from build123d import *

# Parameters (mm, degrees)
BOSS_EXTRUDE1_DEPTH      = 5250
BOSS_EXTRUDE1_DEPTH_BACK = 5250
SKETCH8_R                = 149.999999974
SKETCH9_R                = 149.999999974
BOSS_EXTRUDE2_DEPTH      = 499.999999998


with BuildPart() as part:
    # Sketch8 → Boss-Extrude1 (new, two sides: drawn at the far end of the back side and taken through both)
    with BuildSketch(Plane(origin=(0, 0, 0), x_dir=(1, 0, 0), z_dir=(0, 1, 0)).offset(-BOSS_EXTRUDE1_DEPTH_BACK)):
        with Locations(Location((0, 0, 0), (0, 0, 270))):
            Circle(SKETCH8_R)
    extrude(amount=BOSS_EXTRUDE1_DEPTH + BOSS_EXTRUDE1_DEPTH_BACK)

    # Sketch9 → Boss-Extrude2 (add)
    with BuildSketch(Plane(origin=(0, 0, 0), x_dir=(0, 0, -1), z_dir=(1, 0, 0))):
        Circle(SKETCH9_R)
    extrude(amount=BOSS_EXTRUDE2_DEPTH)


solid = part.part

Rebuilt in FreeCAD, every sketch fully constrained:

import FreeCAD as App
import Part
import Sketcher
from FreeCAD import Vector

doc = App.newDocument("Part")
params = doc.addObject("Spreadsheet::Sheet", "Params")
for row, (alias, value) in enumerate([
    ("sketch1_diameter", "300 mm"),
    ("pad1_length", "5250 mm"),
    ("pad1_length2", "5250 mm"),
    ("sketch2_diameter", "300 mm"),
    ("pad2_length", "500 mm"),
], start=1):
    params.set(f"A{row}", alias)
    params.set(f"B{row}", "=" + value)
    params.setAlias(f"B{row}", alias)

body = doc.addObject("PartDesign::Body", "Body")

sketch1 = body.newObject("Sketcher::SketchObject", "Sketch")
sketch1.AttachmentSupport = (doc.getObject("XZ_Plane"), [""])
sketch1.MapMode = "FlatFace"
sketch1.addGeometry(Part.Circle(Vector(0, 0, 0), Vector(0, 0, 1), 150), False)
sketch1.addConstraint(Sketcher.Constraint("Coincident", 0, 3, -1, 1))
sketch1.addConstraint(Sketcher.Constraint("Diameter", 0, 300.0))
sketch1.setExpression("Constraints[1]", "Params.sketch1_diameter")
pad1 = body.newObject("PartDesign::Pad", "Pad")
pad1.Profile = sketch1
pad1.Type = "TwoLengths"
pad1.setExpression("Length", "Params.pad1_length")
pad1.setExpression("Length2", "Params.pad1_length2")
pad1.Reversed = True

sketch2 = body.newObject("Sketcher::SketchObject", "Sketch001")
sketch2.AttachmentSupport = (doc.getObject("YZ_Plane"), [""])
sketch2.MapMode = "FlatFace"
sketch2.addGeometry(Part.Circle(Vector(0, 0, 0), Vector(0, 0, 1), 150), False)
sketch2.addConstraint(Sketcher.Constraint("Coincident", 0, 3, -1, 1))
sketch2.addConstraint(Sketcher.Constraint("Diameter", 0, 300.0))
sketch2.setExpression("Constraints[1]", "Params.sketch2_diameter")
pad2 = body.newObject("PartDesign::Pad", "Pad001")
pad2.Profile = sketch2
pad2.setExpression("Length", "Params.pad2_length")

doc.recompute()
